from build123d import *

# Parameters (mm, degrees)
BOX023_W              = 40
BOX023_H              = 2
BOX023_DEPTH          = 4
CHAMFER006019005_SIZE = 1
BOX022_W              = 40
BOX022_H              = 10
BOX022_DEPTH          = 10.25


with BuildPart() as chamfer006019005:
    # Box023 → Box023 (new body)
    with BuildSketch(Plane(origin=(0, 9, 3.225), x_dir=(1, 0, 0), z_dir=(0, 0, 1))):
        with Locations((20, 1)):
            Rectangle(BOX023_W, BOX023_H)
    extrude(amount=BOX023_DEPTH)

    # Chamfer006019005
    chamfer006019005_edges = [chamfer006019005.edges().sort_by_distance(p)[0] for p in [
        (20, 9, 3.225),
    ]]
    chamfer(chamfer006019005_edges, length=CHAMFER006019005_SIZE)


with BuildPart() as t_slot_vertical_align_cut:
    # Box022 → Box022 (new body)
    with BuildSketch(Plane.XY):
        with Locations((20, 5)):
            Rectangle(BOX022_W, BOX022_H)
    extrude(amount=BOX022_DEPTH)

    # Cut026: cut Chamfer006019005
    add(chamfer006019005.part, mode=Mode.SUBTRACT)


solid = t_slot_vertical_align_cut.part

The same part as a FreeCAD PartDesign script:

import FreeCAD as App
import Part
import Sketcher
Q = App.Units.Quantity


def edges_at(feature, points):
    """Names of the edges that pass closest to the given points."""
    edges = feature.Shape.Edges
    near = lambda p: min(range(len(edges)), key=lambda i: edges[i].distToShape(Part.Vertex(*p))[0])
    return sorted({f"Edge{near(p) + 1}" for p in points})


def add_polygon(sketch, points):
    """Adds a closed chain of lines whose ends are joined by coincident constraints."""
    first, n = sketch.GeometryCount, len(points)
    for a, b in zip(points, points[1:] + points[:1]):
        sketch.addGeometry(Part.LineSegment(App.Vector(*a, 0), App.Vector(*b, 0)), False)
    for i in range(n):
        sketch.addConstraint(Sketcher.Constraint("Coincident", first + i, 2, first + (i + 1) % n, 1))

doc = App.newDocument("Part")
body = doc.addObject("PartDesign::Body", "Body")

sketch1 = body.newObject("Sketcher::SketchObject", "Sketch")
sketch1.AttachmentSupport = (doc.getObject("XY_Plane"), [""])
sketch1.MapMode = "FlatFace"
sketch1.AttachmentOffset = App.Placement(App.Vector(0, 0, 3.225), App.Rotation())
add_polygon(sketch1, [(0, 11), (0, 9), (40, 9), (40, 11)])
sketch1.addConstraint(Sketcher.Constraint("Vertical", 0))
sketch1.addConstraint(Sketcher.Constraint("Horizontal", 1))
sketch1.addConstraint(Sketcher.Constraint("Vertical", 2))
sketch1.addConstraint(Sketcher.Constraint("Horizontal", 3))
sketch1.addConstraint(Sketcher.Constraint("PointOnObject", 0, 2, -2))
sketch1.addConstraint(Sketcher.Constraint("DistanceX", 1, 1, 1, 2, Q("40 mm")))
sketch1.addConstraint(Sketcher.Constraint("DistanceY", 0, 2, 0, 1, Q("2 mm")))
sketch1.addConstraint(Sketcher.Constraint("DistanceY", -1, 1, 0, 2, Q("9 mm")))
pad1 = body.newObject("PartDesign::Pad", "Pad")
pad1.Profile = sketch1
pad1.Length = 4
doc.recompute()

chamfer = body.newObject("PartDesign::Chamfer", "Chamfer")
chamfer.Base = (pad1, edges_at(pad1, [(20, 9, 3.225)]))
chamfer.Size = 1
body2 = doc.addObject("PartDesign::Body", "Body001")

sketch2 = body2.newObject("Sketcher::SketchObject", "Sketch001")
sketch2.AttachmentSupport = (doc.getObject("XY_Plane001"), [""])
sketch2.MapMode = "FlatFace"
add_polygon(sketch2, [(0, 10), (0, 0), (40, 0), (40, 10)])
sketch2.addConstraint(Sketcher.Constraint("Vertical", 0))
sketch2.addConstraint(Sketcher.Constraint("Horizontal", 1))
sketch2.addConstraint(Sketcher.Constraint("Vertical", 2))
sketch2.addConstraint(Sketcher.Constraint("Horizontal", 3))
sketch2.addConstraint(Sketcher.Constraint("Coincident", 0, 2, -1, 1))
sketch2.addConstraint(Sketcher.Constraint("DistanceX", 1, 1, 1, 2, Q("40 mm")))
sketch2.addConstraint(Sketcher.Constraint("DistanceY", 0, 2, 0, 1, Q("10 mm")))
pad2 = body2.newObject("PartDesign::Pad", "Pad001")
pad2.Profile = sketch2
pad2.Length = 10.25
doc.recompute()

boolean = body2.newObject("PartDesign::Boolean", "Boolean")
boolean.Type = "Cut"
boolean.addObjects([body])

doc.recompute()
